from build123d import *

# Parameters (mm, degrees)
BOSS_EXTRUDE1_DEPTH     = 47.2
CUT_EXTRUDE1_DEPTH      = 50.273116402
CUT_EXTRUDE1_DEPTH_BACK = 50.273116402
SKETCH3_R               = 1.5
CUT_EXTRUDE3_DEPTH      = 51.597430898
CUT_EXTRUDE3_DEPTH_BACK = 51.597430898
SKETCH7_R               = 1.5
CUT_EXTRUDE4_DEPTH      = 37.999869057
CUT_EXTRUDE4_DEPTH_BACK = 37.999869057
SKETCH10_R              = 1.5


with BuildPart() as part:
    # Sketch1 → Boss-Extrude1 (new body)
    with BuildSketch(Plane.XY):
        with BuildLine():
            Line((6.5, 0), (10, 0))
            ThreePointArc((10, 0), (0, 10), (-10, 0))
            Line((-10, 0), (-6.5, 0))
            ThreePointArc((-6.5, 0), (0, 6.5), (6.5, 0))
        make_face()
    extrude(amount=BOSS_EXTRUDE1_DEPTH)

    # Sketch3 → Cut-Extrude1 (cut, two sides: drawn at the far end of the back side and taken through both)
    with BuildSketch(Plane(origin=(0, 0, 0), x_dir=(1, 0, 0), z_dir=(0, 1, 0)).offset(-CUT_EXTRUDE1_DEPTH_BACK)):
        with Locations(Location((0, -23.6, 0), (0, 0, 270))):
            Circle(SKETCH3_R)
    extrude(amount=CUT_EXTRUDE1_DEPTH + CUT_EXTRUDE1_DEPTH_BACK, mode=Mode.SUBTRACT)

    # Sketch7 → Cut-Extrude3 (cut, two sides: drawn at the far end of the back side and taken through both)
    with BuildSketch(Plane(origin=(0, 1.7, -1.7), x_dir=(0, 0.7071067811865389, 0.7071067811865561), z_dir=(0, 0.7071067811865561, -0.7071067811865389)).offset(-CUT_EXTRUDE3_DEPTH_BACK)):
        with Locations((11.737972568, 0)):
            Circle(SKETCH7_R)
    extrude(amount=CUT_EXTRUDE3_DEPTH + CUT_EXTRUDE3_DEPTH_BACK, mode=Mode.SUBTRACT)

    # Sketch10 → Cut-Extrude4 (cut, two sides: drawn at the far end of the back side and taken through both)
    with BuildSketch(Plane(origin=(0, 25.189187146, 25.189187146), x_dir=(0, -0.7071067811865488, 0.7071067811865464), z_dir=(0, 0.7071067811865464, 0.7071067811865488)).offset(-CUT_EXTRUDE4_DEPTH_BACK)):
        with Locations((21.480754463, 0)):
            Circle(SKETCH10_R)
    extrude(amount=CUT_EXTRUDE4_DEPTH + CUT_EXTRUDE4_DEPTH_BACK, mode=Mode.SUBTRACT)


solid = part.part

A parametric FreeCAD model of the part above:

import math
import FreeCAD as App
import Part
import Sketcher
from FreeCAD import Vector
Q = App.Units.Quantity

doc = App.newDocument("Part")
body = doc.addObject("PartDesign::Body", "Body")

# Sketch on XY plane
sketch1 = doc.addObject("Sketcher::SketchObject", "Sketch")
body.addObject(sketch1)
sketch1.AttachmentSupport = (doc.XY_Plane, [""])
sketch1.MapMode = "FlatFace"
sketch1.addGeometry(Part.LineSegment(Vector(6.5, 0, 0), Vector(10, 0, 0)), False)
sketch1.addGeometry(Part.ArcOfCircle(Part.Circle(Vector(0, 0, 0), Vector(0, 0, 1), 10), math.radians(0), math.radians(180)), False)
sketch1.addGeometry(Part.LineSegment(Vector(-10, 0, 0), Vector(-6.5, 0, 0)), False)
sketch1.addGeometry(Part.ArcOfCircle(Part.Circle(Vector(0, 0, 0), Vector(0, 0, 1), 6.5), math.radians(0), math.radians(180)), False)
sketch1.addConstraint(Sketcher.Constraint("Coincident", 0, 2, 1, 1))
sketch1.addConstraint(Sketcher.Constraint("Coincident", 1, 2, 2, 1))
sketch1.addConstraint(Sketcher.Constraint("Coincident", 2, 2, 3, 2))
sketch1.addConstraint(Sketcher.Constraint("Coincident", 3, 1, 0, 1))
sketch1.addConstraint(Sketcher.Constraint("Horizontal", 0))
sketch1.addConstraint(Sketcher.Constraint("Horizontal", 2))
sketch1.addConstraint(Sketcher.Constraint("Coincident", 1, 3, -1, 1))
sketch1.addConstraint(Sketcher.Constraint("Coincident", 3, 3, -1, 1))
sketch1.addConstraint(Sketcher.Constraint("PointOnObject", 0, 2, -1))
sketch1.addConstraint(Sketcher.Constraint("PointOnObject", 1, 2, -1))
sketch1.addConstraint(Sketcher.Constraint("Radius", 1, Q("10 mm")))
sketch1.addConstraint(Sketcher.Constraint("Radius", 3, Q("6.5 mm")))
pad1 = doc.addObject("PartDesign::Pad", "Pad")
body.addObject(pad1)
pad1.Profile = sketch1
pad1.Length = 47.2

# Sketch on XZ plane
sketch2 = doc.addObject("Sketcher::SketchObject", "Sketch001")
body.addObject(sketch2)
sketch2.AttachmentSupport = (doc.XZ_Plane, [""])
sketch2.MapMode = "FlatFace"
sketch2.addGeometry(Part.Circle(Vector(0, 23.6, 0), Vector(0, 0, 1), 1.5), False)
sketch2.addConstraint(Sketcher.Constraint("PointOnObject", 0, 3, -2))
sketch2.addConstraint(Sketcher.Constraint("Diameter", 0, Q("3 mm")))
sketch2.addConstraint(Sketcher.Constraint("DistanceY", -1, 1, 0, 3, Q("23.6 mm")))
pocket1 = doc.addObject("PartDesign::Pocket", "Pocket")
body.addObject(pocket1)
pocket1.Profile = sketch2
pocket1.Type = "ThroughAll"
pocket1.Midplane = True

# Sketch on an angled plane
sketch3 = doc.addObject("Sketcher::SketchObject", "Sketch002")
body.addObject(sketch3)
sketch3.Placement = App.Placement(Vector(0, 1.7, -1.7), App.Rotation(Vector(0, 0.707106781, 0.707106781), Vector(0.999999999, 0, 0), Vector(0, 0.707106781, -0.707106781), "ZXY"))
sketch3.addGeometry(Part.Circle(Vector(11.7, 0, 0), Vector(0, 0, 1), 1.5), False)
sketch3.addConstraint(Sketcher.Constraint("PointOnObject", 0, 3, -1))
sketch3.addConstraint(Sketcher.Constraint("Diameter", 0, Q("3 mm")))
sketch3.addConstraint(Sketcher.Constraint("DistanceX", -1, 1, 0, 3, Q("11.737973 mm")))
pocket2 = doc.addObject("PartDesign::Pocket", "Pocket001")
body.addObject(pocket2)
pocket2.Profile = sketch3
pocket2.Type = "ThroughAll"
pocket2.Midplane = True

# Sketch on an angled plane
sketch4 = doc.addObject("Sketcher::SketchObject", "Sketch003")
body.addObject(sketch4)
sketch4.Placement = App.Placement(Vector(0, 25.189187, 25.189187), App.Rotation(Vector(0, -0.707106781, 0.707106781), Vector(0.999999999, 0, 0), Vector(0, 0.707106781, 0.707106781), "ZXY"))
sketch4.addGeometry(Part.Circle(Vector(21.5, 0, 0), Vector(0, 0, 1), 1.5), False)
sketch4.addConstraint(Sketcher.Constraint("PointOnObject", 0, 3, -1))
sketch4.addConstraint(Sketcher.Constraint("Diameter", 0, Q("3 mm")))
sketch4.addConstraint(Sketcher.Constraint("DistanceX", -1, 1, 0, 3, Q("21.480754 mm")))
pocket3 = doc.addObject("PartDesign::Pocket", "Pocket002")
body.addObject(pocket3)
pocket3.Profile = sketch4
pocket3.Type = "ThroughAll"
pocket3.Midplane = True

doc.recompute()
